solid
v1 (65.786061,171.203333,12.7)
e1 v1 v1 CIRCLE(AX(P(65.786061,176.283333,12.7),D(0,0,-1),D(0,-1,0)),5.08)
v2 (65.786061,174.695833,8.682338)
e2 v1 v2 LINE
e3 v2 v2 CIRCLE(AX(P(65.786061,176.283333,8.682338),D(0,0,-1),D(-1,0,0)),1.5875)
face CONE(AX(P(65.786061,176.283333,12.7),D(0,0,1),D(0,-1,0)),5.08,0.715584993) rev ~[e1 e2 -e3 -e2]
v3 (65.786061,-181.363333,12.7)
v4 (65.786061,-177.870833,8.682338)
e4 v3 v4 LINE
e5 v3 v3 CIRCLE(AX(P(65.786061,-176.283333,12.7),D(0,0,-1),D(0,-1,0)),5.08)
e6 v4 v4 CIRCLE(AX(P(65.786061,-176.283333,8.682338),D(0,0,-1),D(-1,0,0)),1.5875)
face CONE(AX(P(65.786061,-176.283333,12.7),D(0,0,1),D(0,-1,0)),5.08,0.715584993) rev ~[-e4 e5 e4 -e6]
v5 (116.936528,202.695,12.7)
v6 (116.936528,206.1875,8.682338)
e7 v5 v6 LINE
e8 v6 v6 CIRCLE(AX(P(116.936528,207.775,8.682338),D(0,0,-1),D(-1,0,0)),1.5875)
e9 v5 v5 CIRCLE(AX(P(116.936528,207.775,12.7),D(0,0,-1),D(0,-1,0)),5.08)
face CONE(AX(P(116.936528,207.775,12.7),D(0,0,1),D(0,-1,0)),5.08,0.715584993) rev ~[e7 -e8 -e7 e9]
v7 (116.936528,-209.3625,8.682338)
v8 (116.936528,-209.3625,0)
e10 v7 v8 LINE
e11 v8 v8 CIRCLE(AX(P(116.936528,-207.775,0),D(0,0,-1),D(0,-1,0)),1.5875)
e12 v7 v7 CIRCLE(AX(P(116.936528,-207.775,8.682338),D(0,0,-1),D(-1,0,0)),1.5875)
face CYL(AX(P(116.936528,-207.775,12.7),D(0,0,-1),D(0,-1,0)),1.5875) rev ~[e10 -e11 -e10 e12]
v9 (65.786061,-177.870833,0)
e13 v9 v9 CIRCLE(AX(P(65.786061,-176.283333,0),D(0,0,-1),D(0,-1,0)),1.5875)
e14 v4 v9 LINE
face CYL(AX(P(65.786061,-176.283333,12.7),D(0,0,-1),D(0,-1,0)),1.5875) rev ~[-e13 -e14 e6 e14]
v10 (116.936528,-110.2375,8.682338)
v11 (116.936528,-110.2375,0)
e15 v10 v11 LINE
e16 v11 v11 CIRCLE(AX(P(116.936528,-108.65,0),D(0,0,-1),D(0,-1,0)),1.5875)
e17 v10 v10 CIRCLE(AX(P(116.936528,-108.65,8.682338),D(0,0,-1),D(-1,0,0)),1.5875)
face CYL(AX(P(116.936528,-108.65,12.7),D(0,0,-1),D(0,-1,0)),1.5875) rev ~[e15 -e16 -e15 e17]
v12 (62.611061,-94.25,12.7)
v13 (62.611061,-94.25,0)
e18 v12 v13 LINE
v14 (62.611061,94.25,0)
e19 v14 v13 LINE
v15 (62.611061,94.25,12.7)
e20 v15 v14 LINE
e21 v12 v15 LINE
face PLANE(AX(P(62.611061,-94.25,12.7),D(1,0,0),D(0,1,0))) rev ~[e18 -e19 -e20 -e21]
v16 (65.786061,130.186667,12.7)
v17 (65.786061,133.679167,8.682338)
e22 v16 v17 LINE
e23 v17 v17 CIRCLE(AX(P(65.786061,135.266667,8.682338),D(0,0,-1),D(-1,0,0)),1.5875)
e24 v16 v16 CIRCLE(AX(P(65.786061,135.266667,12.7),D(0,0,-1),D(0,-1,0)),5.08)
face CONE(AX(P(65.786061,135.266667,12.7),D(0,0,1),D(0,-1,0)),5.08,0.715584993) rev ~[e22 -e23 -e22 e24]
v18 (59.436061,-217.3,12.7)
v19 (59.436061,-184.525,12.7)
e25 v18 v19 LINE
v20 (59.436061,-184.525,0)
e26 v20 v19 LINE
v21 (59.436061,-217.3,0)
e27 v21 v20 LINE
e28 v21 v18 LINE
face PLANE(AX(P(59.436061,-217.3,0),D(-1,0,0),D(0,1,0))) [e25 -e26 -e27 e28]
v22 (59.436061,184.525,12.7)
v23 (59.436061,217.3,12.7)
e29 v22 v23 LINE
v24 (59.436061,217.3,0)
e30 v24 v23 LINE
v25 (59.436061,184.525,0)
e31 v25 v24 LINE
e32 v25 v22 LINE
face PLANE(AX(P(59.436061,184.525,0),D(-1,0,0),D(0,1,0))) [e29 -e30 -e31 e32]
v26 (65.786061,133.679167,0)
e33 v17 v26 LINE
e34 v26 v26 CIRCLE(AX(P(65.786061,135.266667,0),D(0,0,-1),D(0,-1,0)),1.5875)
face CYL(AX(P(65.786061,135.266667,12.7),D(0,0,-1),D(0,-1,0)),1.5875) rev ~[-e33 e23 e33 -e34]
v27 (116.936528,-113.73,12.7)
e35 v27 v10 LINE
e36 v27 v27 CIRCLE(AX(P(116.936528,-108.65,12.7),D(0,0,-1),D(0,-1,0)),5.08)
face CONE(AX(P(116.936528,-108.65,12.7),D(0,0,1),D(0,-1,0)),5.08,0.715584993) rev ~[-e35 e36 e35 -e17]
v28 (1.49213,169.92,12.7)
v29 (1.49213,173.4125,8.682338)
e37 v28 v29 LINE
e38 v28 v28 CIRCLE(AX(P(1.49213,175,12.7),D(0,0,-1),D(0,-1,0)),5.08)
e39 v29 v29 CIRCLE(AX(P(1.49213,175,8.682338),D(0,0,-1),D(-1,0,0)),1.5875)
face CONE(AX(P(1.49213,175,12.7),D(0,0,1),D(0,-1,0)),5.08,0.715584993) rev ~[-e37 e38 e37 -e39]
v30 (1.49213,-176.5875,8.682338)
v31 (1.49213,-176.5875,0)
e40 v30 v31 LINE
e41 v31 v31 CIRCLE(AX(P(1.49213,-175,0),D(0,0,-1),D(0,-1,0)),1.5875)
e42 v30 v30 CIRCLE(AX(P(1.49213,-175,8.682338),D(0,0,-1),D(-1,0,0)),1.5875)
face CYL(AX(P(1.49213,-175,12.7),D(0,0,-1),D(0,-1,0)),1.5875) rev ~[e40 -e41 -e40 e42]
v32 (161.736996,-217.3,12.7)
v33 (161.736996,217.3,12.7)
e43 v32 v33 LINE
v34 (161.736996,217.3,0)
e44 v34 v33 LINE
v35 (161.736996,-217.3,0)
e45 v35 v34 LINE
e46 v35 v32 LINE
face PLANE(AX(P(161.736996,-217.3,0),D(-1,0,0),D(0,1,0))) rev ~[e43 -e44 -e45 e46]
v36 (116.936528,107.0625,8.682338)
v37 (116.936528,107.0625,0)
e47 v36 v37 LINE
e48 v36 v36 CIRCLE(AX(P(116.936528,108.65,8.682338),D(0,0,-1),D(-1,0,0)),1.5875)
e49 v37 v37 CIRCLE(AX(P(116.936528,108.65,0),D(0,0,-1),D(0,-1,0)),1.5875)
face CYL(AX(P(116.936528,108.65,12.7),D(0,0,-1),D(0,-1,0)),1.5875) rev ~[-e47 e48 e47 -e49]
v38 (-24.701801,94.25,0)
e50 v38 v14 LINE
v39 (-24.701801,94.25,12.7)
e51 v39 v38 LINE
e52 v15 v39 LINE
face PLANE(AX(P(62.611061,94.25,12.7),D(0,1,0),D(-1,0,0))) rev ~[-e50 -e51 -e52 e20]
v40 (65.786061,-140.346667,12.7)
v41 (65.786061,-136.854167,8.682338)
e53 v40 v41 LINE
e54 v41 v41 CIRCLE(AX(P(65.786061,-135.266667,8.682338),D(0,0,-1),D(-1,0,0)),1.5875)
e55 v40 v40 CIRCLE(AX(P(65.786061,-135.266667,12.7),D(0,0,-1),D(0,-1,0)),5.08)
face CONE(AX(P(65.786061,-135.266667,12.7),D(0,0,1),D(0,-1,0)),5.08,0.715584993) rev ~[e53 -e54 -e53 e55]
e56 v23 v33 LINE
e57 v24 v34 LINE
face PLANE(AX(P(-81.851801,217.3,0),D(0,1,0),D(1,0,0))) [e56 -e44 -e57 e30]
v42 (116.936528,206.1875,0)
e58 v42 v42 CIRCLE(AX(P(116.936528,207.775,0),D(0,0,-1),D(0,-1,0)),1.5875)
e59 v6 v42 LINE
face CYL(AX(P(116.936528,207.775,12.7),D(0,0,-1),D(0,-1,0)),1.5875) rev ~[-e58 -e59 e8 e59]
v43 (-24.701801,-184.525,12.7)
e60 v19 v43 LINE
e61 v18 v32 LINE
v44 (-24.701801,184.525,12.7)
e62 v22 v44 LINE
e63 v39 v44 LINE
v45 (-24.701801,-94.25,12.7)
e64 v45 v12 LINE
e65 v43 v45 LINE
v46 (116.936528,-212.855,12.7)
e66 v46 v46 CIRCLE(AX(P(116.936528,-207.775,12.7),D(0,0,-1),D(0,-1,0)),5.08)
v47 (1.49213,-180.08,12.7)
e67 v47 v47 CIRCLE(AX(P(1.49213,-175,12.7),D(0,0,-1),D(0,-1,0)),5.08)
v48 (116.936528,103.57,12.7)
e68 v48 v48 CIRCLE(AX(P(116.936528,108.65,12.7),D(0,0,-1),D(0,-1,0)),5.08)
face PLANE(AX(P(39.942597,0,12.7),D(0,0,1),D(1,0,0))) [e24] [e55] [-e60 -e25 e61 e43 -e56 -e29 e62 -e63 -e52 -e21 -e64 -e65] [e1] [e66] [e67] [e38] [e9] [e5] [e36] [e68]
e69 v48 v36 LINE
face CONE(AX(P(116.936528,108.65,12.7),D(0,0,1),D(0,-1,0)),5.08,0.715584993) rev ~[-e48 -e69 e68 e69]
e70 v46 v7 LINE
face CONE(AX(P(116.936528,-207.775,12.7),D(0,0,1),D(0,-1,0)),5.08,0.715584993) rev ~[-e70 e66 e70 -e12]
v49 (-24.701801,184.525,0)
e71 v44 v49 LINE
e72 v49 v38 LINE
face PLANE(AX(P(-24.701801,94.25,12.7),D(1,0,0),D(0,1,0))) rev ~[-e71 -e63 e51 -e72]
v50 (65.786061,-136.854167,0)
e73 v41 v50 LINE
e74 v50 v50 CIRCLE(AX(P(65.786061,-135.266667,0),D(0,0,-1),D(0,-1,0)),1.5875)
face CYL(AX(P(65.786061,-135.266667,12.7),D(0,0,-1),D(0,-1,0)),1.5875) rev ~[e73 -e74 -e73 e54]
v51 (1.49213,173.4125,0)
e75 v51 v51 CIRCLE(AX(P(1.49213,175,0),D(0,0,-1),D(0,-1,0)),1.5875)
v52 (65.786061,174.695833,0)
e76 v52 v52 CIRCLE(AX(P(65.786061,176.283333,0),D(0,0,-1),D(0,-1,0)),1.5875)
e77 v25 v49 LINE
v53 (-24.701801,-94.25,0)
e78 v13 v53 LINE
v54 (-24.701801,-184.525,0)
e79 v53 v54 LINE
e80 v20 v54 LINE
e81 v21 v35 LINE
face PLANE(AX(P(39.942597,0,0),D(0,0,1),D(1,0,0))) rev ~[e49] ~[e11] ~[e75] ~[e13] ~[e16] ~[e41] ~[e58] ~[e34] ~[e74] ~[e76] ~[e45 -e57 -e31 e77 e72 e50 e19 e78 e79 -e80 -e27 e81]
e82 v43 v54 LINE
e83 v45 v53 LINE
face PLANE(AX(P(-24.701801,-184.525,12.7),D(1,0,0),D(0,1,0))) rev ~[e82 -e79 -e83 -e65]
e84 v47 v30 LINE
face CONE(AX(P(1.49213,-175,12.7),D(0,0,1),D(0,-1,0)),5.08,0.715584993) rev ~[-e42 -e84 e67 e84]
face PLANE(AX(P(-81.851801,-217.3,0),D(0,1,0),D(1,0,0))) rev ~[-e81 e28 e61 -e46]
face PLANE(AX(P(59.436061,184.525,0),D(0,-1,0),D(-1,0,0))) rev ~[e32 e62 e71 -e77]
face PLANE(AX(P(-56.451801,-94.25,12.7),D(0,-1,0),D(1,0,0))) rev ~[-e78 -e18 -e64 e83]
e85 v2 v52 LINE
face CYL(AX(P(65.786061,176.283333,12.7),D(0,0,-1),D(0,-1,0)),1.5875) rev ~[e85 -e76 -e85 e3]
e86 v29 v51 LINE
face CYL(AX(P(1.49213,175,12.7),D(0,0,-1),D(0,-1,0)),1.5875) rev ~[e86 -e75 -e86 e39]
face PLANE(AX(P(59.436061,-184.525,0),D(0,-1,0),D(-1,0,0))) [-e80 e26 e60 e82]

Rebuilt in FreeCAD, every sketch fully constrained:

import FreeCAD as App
import Part
import Sketcher
from FreeCAD import Vector
Q = App.Units.Quantity


def add_polygon(sketch, points):
    """Adds a closed chain of lines whose ends are joined by coincident constraints."""
    first, n = sketch.GeometryCount, len(points)
    for a, b in zip(points, points[1:] + points[:1]):
        sketch.addGeometry(Part.LineSegment(App.Vector(*a, 0), App.Vector(*b, 0)), False)
    for i in range(n):
        sketch.addConstraint(Sketcher.Constraint("Coincident", first + i, 2, first + (i + 1) % n, 1))

doc = App.newDocument("Part")
body = doc.addObject("PartDesign::Body", "Body")

sketch1 = body.newObject("Sketcher::SketchObject", "Sketch")
sketch1.AttachmentSupport = (doc.getObject("XY_Plane"), [""])
sketch1.MapMode = "FlatFace"
add_polygon(sketch1, [(-82, 217), (-82, -217), (162, -217), (162, 217)])
sketch1.addConstraint(Sketcher.Constraint("Vertical", 0))
sketch1.addConstraint(Sketcher.Constraint("Horizontal", 1))
sketch1.addConstraint(Sketcher.Constraint("Vertical", 2))
sketch1.addConstraint(Sketcher.Constraint("Horizontal", 3))
sketch1.addConstraint(Sketcher.Constraint("DistanceY", 0, 2, 0, 1, 434.6))
sketch1.addConstraint(Sketcher.Constraint("DistanceX", 0, 2, -1, 1, 81.851801))
sketch1.addConstraint(Sketcher.Constraint("DistanceY", 0, 2, -1, 1, 217.3))
sketch1.addConstraint(Sketcher.Constraint("DistanceX", 1, 1, 1, 2, 243.588796))
pad1 = body.newObject("PartDesign::Pad", "Pad")
pad1.Profile = sketch1
pad1.Length = Q("0.5 in")

sketch2 = body.newObject("Sketcher::SketchObject", "Sketch001")
sketch2.AttachmentSupport = (doc.getObject("XY_Plane"), [""])
sketch2.MapMode = "FlatFace"
add_polygon(sketch2, [(59, 217), (59, 185), (-82, 185), (-82, 217)])
sketch2.addConstraint(Sketcher.Constraint("Vertical", 0))
sketch2.addConstraint(Sketcher.Constraint("Horizontal", 1))
sketch2.addConstraint(Sketcher.Constraint("Vertical", 2))
sketch2.addConstraint(Sketcher.Constraint("Horizontal", 3))
sketch2.addConstraint(Sketcher.Constraint("DistanceY", 0, 2, 0, 1, 32.775))
sketch2.addConstraint(Sketcher.Constraint("DistanceY", -1, 1, 0, 2, 184.525))
sketch2.addConstraint(Sketcher.Constraint("DistanceX", 1, 2, -1, 1, 81.851801))
sketch2.addConstraint(Sketcher.Constraint("DistanceX", 1, 2, 1, 1, 141.287862))
pocket1 = body.newObject("PartDesign::Pocket", "Pocket")
pocket1.Profile = sketch2
pocket1.Type = "UpToFirst"
pocket1.Reversed = True

sketch3 = body.newObject("Sketcher::SketchObject", "Sketch002")
sketch3.AttachmentSupport = (doc.getObject("XY_Plane"), [""])
sketch3.MapMode = "FlatFace"
add_polygon(sketch3, [(59, -185), (59, -217), (-82, -217), (-82, -185)])
sketch3.addConstraint(Sketcher.Constraint("Vertical", 0))
sketch3.addConstraint(Sketcher.Constraint("Horizontal", 1))
sketch3.addConstraint(Sketcher.Constraint("Vertical", 2))
sketch3.addConstraint(Sketcher.Constraint("Horizontal", 3))
sketch3.addConstraint(Sketcher.Constraint("DistanceY", 0, 2, 0, 1, 32.775))
sketch3.addConstraint(Sketcher.Constraint("DistanceY", 0, 2, -1, 1, 217.3))
sketch3.addConstraint(Sketcher.Constraint("DistanceX", 1, 2, -1, 1, 81.851801))
sketch3.addConstraint(Sketcher.Constraint("DistanceX", 1, 2, 1, 1, 141.287862))
pocket2 = body.newObject("PartDesign::Pocket", "Pocket001")
pocket2.Profile = sketch3
pocket2.Type = "UpToFirst"
pocket2.Reversed = True

sketch4 = body.newObject("Sketcher::SketchObject", "Sketch003")
sketch4.AttachmentSupport = (doc.getObject("XY_Plane"), [""])
sketch4.MapMode = "FlatFace"
sketch4.AttachmentOffset = App.Placement(Vector(0, 0, 0.5 * 25.4), App.Rotation())
add_polygon(sketch4, [(62.6, 94.2), (-56.5, 94.2), (-56.5, 184.5), (-81.9, 184.5), (-81.9, 94.2), (-85, 94.2), (-85, -94.2), (-81.9, -94.2), (-81.9, -184.5), (-56.5, -184.5), (-56.5, -94.2), (62.6, -94.2)])
sketch4.addConstraint(Sketcher.Constraint("Horizontal", 0))
sketch4.addConstraint(Sketcher.Constraint("Vertical", 1))
sketch4.addConstraint(Sketcher.Constraint("Horizontal", 2))
sketch4.addConstraint(Sketcher.Constraint("Vertical", 3))
sketch4.addConstraint(Sketcher.Constraint("Horizontal", 4))
sketch4.addConstraint(Sketcher.Constraint("Vertical", 5))
sketch4.addConstraint(Sketcher.Constraint("Horizontal", 6))
sketch4.addConstraint(Sketcher.Constraint("Vertical", 7))
sketch4.addConstraint(Sketcher.Constraint("Horizontal", 8))
sketch4.addConstraint(Sketcher.Constraint("Vertical", 9))
sketch4.addConstraint(Sketcher.Constraint("Horizontal", 10))
sketch4.addConstraint(Sketcher.Constraint("Vertical", 11))
sketch4.addConstraint(Sketcher.Constraint("Symmetric", 3, 2, 6, 2, -1))
sketch4.addConstraint(Sketcher.Constraint("Symmetric", 1, 2, 8, 2, -1))
sketch4.addConstraint(Sketcher.Constraint("Horizontal", 0, 2, 3, 2))
sketch4.addConstraint(Sketcher.Constraint("Horizontal", 6, 2, 9, 2))
sketch4.addConstraint(Sketcher.Constraint("DistanceX", 2, 2, 2, 1, Q("1 in")))
sketch4.addConstraint(Sketcher.Constraint("DistanceX", 4, 2, 4, 1, Q("0.125 in")))
sketch4.addConstraint(Sketcher.Constraint("DistanceY", 1, 1, 1, 2, 90.275))
sketch4.addConstraint(Sketcher.Constraint("DistanceY", 5, 2, 5, 1, 188.5))
sketch4.addConstraint(Sketcher.Constraint("DistanceX", 0, 2, -1, 1, 56.451801))
sketch4.addConstraint(Sketcher.Constraint("DistanceX", 0, 2, 0, 1, 119.062862))
pocket3 = body.newObject("PartDesign::Pocket", "Pocket002")
pocket3.Profile = sketch4
pocket3.Type = "UpToFirst"

sketch5 = body.newObject("Sketcher::SketchObject", "Sketch004")
sketch5.AttachmentSupport = (doc.getObject("XY_Plane"), [""])
sketch5.MapMode = "FlatFace"
sketch5.AttachmentOffset = App.Placement(Vector(0, 0, 0.5 * 25.4), App.Rotation())
sketch5.addGeometry(Part.Circle(Vector(116.9, -108.6, 0), Vector(0, 0, 1), 1.6), False)
sketch5.addGeometry(Part.Circle(Vector(116.9, 108.6, 0), Vector(0, 0, 1), 1.6), False)
sketch5.addGeometry(Part.Circle(Vector(116.9, 207.8, 0), Vector(0, 0, 1), 1.6), False)
sketch5.addGeometry(Part.Circle(Vector(1.5, 175, 0), Vector(0, 0, 1), 1.6), False)
sketch5.addGeometry(Part.Circle(Vector(65.8, 135.3, 0), Vector(0, 0, 1), 1.6), False)
sketch5.addGeometry(Part.Circle(Vector(65.8, 176.3, 0), Vector(0, 0, 1), 1.6), False)
sketch5.addGeometry(Part.Circle(Vector(1.5, -175, 0), Vector(0, 0, 1), 1.6), False)
sketch5.addGeometry(Part.Circle(Vector(65.8, -135.3, 0), Vector(0, 0, 1), 1.6), False)
sketch5.addGeometry(Part.Circle(Vector(65.8, -176.3, 0), Vector(0, 0, 1), 1.6), False)
sketch5.addGeometry(Part.Circle(Vector(116.9, -207.8, 0), Vector(0, 0, 1), 1.6), False)
sketch5.addConstraint(Sketcher.Constraint("Equal", 0, 1))
sketch5.addConstraint(Sketcher.Constraint("Equal", 1, 2))
sketch5.addConstraint(Sketcher.Constraint("Equal", 2, 3))
sketch5.addConstraint(Sketcher.Constraint("Equal", 3, 4))
sketch5.addConstraint(Sketcher.Constraint("Equal", 4, 5))
sketch5.addConstraint(Sketcher.Constraint("Equal", 5, 6))
sketch5.addConstraint(Sketcher.Constraint("Equal", 6, 7))
sketch5.addConstraint(Sketcher.Constraint("Equal", 7, 8))
sketch5.addConstraint(Sketcher.Constraint("Equal", 8, 9))
sketch5.addConstraint(Sketcher.Constraint("Symmetric", 0, 3, 1, 3, -1))
sketch5.addConstraint(Sketcher.Constraint("Symmetric", 3, 3, 6, 3, -1))
sketch5.addConstraint(Sketcher.Constraint("Symmetric", 4, 3, 7, 3, -1))
sketch5.addConstraint(Sketcher.Constraint("Symmetric", 5, 3, 8, 3, -1))
sketch5.addConstraint(Sketcher.Constraint("Symmetric", 2, 3, 9, 3, -1))
sketch5.addConstraint(Sketcher.Constraint("Vertical", 1, 3, 2, 3))
sketch5.addConstraint(Sketcher.Constraint("Vertical", 4, 3, 5, 3))
sketch5.addConstraint(Sketcher.Constraint("Diameter", 0, Q("0.125 in")))
sketch5.addConstraint(Sketcher.Constraint("DistanceY", 0, 3, -1, 1, 108.65))
sketch5.addConstraint(Sketcher.Constraint("DistanceY", -1, 1, 2, 3, 207.775))
sketch5.addConstraint(Sketcher.Constraint("DistanceY", -1, 1, 3, 3, 175.0))
sketch5.addConstraint(Sketcher.Constraint("DistanceX", 3, 3, 2, 3, 115.444398))
sketch5.addConstraint(Sketcher.Constraint("DistanceY", 7, 3, 5, 3, 311.55))
sketch5.addConstraint(Sketcher.Constraint("DistanceX", -1, 1, 0, 3, 116.936528))
sketch5.addConstraint(Sketcher.Constraint("DistanceX", -1, 1, 4, 3, 65.786061))
sketch5.addConstraint(Sketcher.Constraint("DistanceY", -1, 1, 4, 3, 135.266667))
doc.recompute()
hole = body.newObject("PartDesign::Hole", "Hole")
hole.Profile = sketch5
hole.ThreadType = "None"
hole.Diameter = Q("0.125 in")
hole.DepthType = "Dimension"
hole.Depth = Q("1.5 in")
hole.DrillPoint = "Angled"
hole.DrillPointAngle = 118
hole.HoleCutType = "Countersink"
hole.HoleCutDiameter = Q("0.4 in")
hole.HoleCutCountersinkAngle = 82

sketch6 = body.newObject("Sketcher::SketchObject", "Sketch005")
sketch6.AttachmentSupport = (doc.getObject("XY_Plane"), [""])
sketch6.MapMode = "FlatFace"
sketch6.AttachmentOffset = App.Placement(Vector(0, 0, 0.5 * 25.4), App.Rotation())
add_polygon(sketch6, [(-56, 185), (-56, 94), (-25, 94), (-25, 185)])
sketch6.addConstraint(Sketcher.Constraint("Vertical", 0))
sketch6.addConstraint(Sketcher.Constraint("Horizontal", 1))
sketch6.addConstraint(Sketcher.Constraint("Vertical", 2))
sketch6.addConstraint(Sketcher.Constraint("Horizontal", 3))
sketch6.addConstraint(Sketcher.Constraint("DistanceX", 1, 1, 1, 2, Q("1.25 in")))
sketch6.addConstraint(Sketcher.Constraint("DistanceY", 0, 2, 0, 1, 90.275))
sketch6.addConstraint(Sketcher.Constraint("DistanceX", 0, 2, -1, 1, 56.451801))
sketch6.addConstraint(Sketcher.Constraint("DistanceY", -1, 1, 0, 2, 94.25))
pocket4 = body.newObject("PartDesign::Pocket", "Pocket003")
pocket4.Profile = sketch6
pocket4.Type = "UpToFirst"

sketch7 = body.newObject("Sketcher::SketchObject", "Sketch006")
sketch7.AttachmentSupport = (doc.getObject("XY_Plane"), [""])
sketch7.MapMode = "FlatFace"
sketch7.AttachmentOffset = App.Placement(Vector(0, 0, 0.5 * 25.4), App.Rotation())
add_polygon(sketch7, [(-56, -94), (-56, -185), (-25, -185), (-25, -94)])
sketch7.addConstraint(Sketcher.Constraint("Vertical", 0))
sketch7.addConstraint(Sketcher.Constraint("Horizontal", 1))
sketch7.addConstraint(Sketcher.Constraint("Vertical", 2))
sketch7.addConstraint(Sketcher.Constraint("Horizontal", 3))
sketch7.addConstraint(Sketcher.Constraint("DistanceX", 1, 1, 1, 2, Q("1.25 in")))
sketch7.addConstraint(Sketcher.Constraint("DistanceY", 0, 2, 0, 1, 90.275))
sketch7.addConstraint(Sketcher.Constraint("DistanceX", 0, 2, -1, 1, 56.451801))
sketch7.addConstraint(Sketcher.Constraint("DistanceY", 0, 2, -1, 1, 184.525))
pocket5 = body.newObject("PartDesign::Pocket", "Pocket004")
pocket5.Profile = sketch7
pocket5.Type = "UpToFirst"

doc.recompute()
